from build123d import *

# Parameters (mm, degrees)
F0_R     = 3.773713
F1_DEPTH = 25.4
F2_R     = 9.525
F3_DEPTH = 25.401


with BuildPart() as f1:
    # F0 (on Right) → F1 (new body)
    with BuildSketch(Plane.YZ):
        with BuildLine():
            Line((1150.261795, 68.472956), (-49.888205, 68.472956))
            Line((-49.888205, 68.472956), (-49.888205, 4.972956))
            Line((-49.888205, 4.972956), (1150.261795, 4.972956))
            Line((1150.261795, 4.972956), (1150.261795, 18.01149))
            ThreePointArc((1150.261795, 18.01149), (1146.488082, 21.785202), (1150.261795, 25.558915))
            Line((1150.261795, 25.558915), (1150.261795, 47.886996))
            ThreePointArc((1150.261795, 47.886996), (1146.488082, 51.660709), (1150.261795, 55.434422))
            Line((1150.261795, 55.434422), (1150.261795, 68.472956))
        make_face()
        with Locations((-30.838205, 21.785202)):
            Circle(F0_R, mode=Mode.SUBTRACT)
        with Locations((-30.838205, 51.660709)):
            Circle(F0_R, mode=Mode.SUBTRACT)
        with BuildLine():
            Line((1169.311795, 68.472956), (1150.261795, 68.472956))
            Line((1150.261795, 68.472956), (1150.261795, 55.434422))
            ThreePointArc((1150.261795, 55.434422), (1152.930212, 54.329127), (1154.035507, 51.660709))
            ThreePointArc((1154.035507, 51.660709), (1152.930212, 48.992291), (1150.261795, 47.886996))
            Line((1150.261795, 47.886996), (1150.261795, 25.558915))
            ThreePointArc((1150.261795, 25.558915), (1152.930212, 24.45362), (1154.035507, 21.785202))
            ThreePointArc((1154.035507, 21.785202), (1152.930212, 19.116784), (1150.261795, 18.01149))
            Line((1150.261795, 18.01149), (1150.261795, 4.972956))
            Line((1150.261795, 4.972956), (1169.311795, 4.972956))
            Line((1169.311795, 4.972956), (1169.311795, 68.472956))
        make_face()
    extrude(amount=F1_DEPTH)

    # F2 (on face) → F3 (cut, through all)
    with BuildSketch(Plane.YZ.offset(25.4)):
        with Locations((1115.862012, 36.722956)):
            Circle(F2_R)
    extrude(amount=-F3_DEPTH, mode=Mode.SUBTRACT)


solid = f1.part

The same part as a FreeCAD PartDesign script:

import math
import FreeCAD as App
import Part
import Sketcher

V = App.Vector
Q = App.Units.Quantity


def add_polygon(sketch, points):
    """Adds a closed chain of lines whose ends are joined by coincident constraints."""
    first, n = sketch.GeometryCount, len(points)
    for a, b in zip(points, points[1:] + points[:1]):
        sketch.addGeometry(Part.LineSegment(App.Vector(*a, 0), App.Vector(*b, 0)), False)
    for i in range(n):
        sketch.addConstraint(Sketcher.Constraint("Coincident", first + i, 2, first + (i + 1) % n, 1))

doc = App.newDocument("Part")
body = doc.addObject("PartDesign::Body", "Body")

sketch1 = doc.addObject("Sketcher::SketchObject", "Sketch")
body.addObject(sketch1)
sketch1.AttachmentSupport = (doc.YZ_Plane, [""])
sketch1.MapMode = "FlatFace"
add_polygon(sketch1, [(-49.9, 68.5), (-49.9, 5), (1169.3, 5), (1169.3, 68.5)])
sketch1.addGeometry(Part.ArcOfCircle(Part.Circle(V(1150.3, 51.7, 0), V(0, 0, 1), 3.8), math.radians(90), math.radians(270)), False)
sketch1.addGeometry(Part.ArcOfCircle(Part.Circle(V(1150.3, 51.7, 0), V(0, 0, 1), 3.8), math.radians(0), math.radians(90)), False)
sketch1.addGeometry(Part.ArcOfCircle(Part.Circle(V(1150.3, 51.7, 0), V(0, 0, 1), 3.8), math.radians(-90), math.radians(0)), False)
sketch1.addGeometry(Part.ArcOfCircle(Part.Circle(V(1150.3, 21.8, 0), V(0, 0, 1), 3.8), math.radians(90), math.radians(270)), False)
sketch1.addGeometry(Part.ArcOfCircle(Part.Circle(V(1150.3, 21.8, 0), V(0, 0, 1), 3.8), math.radians(0), math.radians(90)), False)
sketch1.addGeometry(Part.ArcOfCircle(Part.Circle(V(1150.3, 21.8, 0), V(0, 0, 1), 3.8), math.radians(-90), math.radians(0)), False)
sketch1.addGeometry(Part.Circle(V(-30.8, 21.8, 0), V(0, 0, 1), 3.8), False)
sketch1.addGeometry(Part.Circle(V(-30.8, 51.7, 0), V(0, 0, 1), 3.8), False)
sketch1.addConstraint(Sketcher.Constraint("Tangent", 4, 1, 5, 2))
sketch1.addConstraint(Sketcher.Constraint("Tangent", 5, 1, 6, 2))
sketch1.addConstraint(Sketcher.Constraint("Tangent", 6, 1, 4, 2))
sketch1.addConstraint(Sketcher.Constraint("Tangent", 7, 1, 8, 2))
sketch1.addConstraint(Sketcher.Constraint("Tangent", 8, 1, 9, 2))
sketch1.addConstraint(Sketcher.Constraint("Tangent", 9, 1, 7, 2))
sketch1.addConstraint(Sketcher.Constraint("Vertical", 0))
sketch1.addConstraint(Sketcher.Constraint("Horizontal", 1))
sketch1.addConstraint(Sketcher.Constraint("Vertical", 2))
sketch1.addConstraint(Sketcher.Constraint("Horizontal", 3))
sketch1.addConstraint(Sketcher.Constraint("Equal", 6, 7))
sketch1.addConstraint(Sketcher.Constraint("Equal", 9, 10))
sketch1.addConstraint(Sketcher.Constraint("Equal", 10, 11))
sketch1.addConstraint(Sketcher.Constraint("Horizontal", 9, 3, 10, 3))
sketch1.addConstraint(Sketcher.Constraint("Horizontal", 6, 3, 11, 3))
sketch1.addConstraint(Sketcher.Constraint("Horizontal", 11, 3, 5, 1))
sketch1.addConstraint(Sketcher.Constraint("Horizontal", 10, 3, 8, 1))
sketch1.addConstraint(Sketcher.Constraint("Vertical", 6, 3, 7, 3))
sketch1.addConstraint(Sketcher.Constraint("Vertical", 10, 3, 11, 3))
sketch1.addConstraint(Sketcher.Constraint("Vertical", 9, 3, 4, 1))
sketch1.addConstraint(Sketcher.Constraint("Vertical", 4, 1, 6, 1))
sketch1.addConstraint(Sketcher.Constraint("Vertical", 6, 1, 7, 1))
sketch1.addConstraint(Sketcher.Constraint("Vertical", 7, 1, 9, 1))
sketch1.addConstraint(Sketcher.Constraint("DistanceX", 1, 1, 1, 2, Q("48 in")))
sketch1.addConstraint(Sketcher.Constraint("DistanceY", 0, 2, 0, 1, Q("2.5 in")))
sketch1.addConstraint(Sketcher.Constraint("DistanceX", 10, 3, 8, 3, Q("46.5 in")))
sketch1.addConstraint(Sketcher.Constraint("DistanceX", 0, 2, 10, 3, Q("0.75 in")))
sketch1.addConstraint(Sketcher.Constraint("Radius", 9, 3.773711))
sketch1.addConstraint(Sketcher.Constraint("DistanceY", -1, 1, 8, 3, 21.785202))
sketch1.addConstraint(Sketcher.Constraint("DistanceY", -1, 1, 4, 3, 51.660709))
sketch1.addConstraint(Sketcher.Constraint("DistanceX", -1, 1, 4, 3, 1150.261795))
sketch1.addConstraint(Sketcher.Constraint("DistanceY", -1, 1, 0, 2, 4.972956))
pad1 = doc.addObject("PartDesign::Pad", "Pad")
body.addObject(pad1)
pad1.Profile = sketch1
pad1.Length = Q("1 in")

sketch2 = doc.addObject("Sketcher::SketchObject", "Sketch001")
body.addObject(sketch2)
sketch2.AttachmentSupport = (doc.YZ_Plane, [""])
sketch2.MapMode = "FlatFace"
sketch2.AttachmentOffset = App.Placement(V(0, 0, 1 * 25.4), App.Rotation())
sketch2.addGeometry(Part.Circle(V(1116, 37, 0), V(0, 0, 1), 10), False)
sketch2.addConstraint(Sketcher.Constraint("Diameter", 0, Q("0.75 in")))
sketch2.addConstraint(Sketcher.Constraint("DistanceX", -1, 1, 0, 3, 1115.862012))
sketch2.addConstraint(Sketcher.Constraint("DistanceY", -1, 1, 0, 3, 36.722956))
pocket1 = doc.addObject("PartDesign::Pocket", "Pocket")
body.addObject(pocket1)
pocket1.Profile = sketch2
pocket1.Type = "ThroughAll"

doc.recompute()
